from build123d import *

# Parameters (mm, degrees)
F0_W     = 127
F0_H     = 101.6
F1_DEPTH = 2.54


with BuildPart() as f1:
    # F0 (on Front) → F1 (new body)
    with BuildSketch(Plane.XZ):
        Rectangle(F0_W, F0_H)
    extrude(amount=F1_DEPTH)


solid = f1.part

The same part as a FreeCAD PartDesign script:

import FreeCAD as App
import Part
import Sketcher

V = App.Vector
Q = App.Units.Quantity


def add_polygon(sketch, points):
    """Adds a closed chain of lines whose ends are joined by coincident constraints."""
    first, n = sketch.GeometryCount, len(points)
    for a, b in zip(points, points[1:] + points[:1]):
        sketch.addGeometry(Part.LineSegment(App.Vector(*a, 0), App.Vector(*b, 0)), False)
    for i in range(n):
        sketch.addConstraint(Sketcher.Constraint("Coincident", first + i, 2, first + (i + 1) % n, 1))

doc = App.newDocument("Part")
body = doc.addObject("PartDesign::Body", "Body")

sketch1 = doc.addObject("Sketcher::SketchObject", "Sketch")
body.addObject(sketch1)
sketch1.AttachmentSupport = (doc.XZ_Plane, [""])
sketch1.MapMode = "FlatFace"
add_polygon(sketch1, [(-64, 51), (-64, -51), (64, -51), (64, 51)])
sketch1.addConstraint(Sketcher.Constraint("Vertical", 0))
sketch1.addConstraint(Sketcher.Constraint("Horizontal", 1))
sketch1.addConstraint(Sketcher.Constraint("Vertical", 2))
sketch1.addConstraint(Sketcher.Constraint("Horizontal", 3))
sketch1.addConstraint(Sketcher.Constraint("Symmetric", 0, 2, 2, 2, -1, 1))
sketch1.addConstraint(Sketcher.Constraint("DistanceX", 1, 1, 1, 2, Q("5 in")))
sketch1.addConstraint(Sketcher.Constraint("DistanceY", 0, 2, 0, 1, Q("4 in")))
pad1 = doc.addObject("PartDesign::Pad", "Pad")
body.addObject(pad1)
pad1.Profile = sketch1
pad1.Length = Q("0.1 in")

doc.recompute()
